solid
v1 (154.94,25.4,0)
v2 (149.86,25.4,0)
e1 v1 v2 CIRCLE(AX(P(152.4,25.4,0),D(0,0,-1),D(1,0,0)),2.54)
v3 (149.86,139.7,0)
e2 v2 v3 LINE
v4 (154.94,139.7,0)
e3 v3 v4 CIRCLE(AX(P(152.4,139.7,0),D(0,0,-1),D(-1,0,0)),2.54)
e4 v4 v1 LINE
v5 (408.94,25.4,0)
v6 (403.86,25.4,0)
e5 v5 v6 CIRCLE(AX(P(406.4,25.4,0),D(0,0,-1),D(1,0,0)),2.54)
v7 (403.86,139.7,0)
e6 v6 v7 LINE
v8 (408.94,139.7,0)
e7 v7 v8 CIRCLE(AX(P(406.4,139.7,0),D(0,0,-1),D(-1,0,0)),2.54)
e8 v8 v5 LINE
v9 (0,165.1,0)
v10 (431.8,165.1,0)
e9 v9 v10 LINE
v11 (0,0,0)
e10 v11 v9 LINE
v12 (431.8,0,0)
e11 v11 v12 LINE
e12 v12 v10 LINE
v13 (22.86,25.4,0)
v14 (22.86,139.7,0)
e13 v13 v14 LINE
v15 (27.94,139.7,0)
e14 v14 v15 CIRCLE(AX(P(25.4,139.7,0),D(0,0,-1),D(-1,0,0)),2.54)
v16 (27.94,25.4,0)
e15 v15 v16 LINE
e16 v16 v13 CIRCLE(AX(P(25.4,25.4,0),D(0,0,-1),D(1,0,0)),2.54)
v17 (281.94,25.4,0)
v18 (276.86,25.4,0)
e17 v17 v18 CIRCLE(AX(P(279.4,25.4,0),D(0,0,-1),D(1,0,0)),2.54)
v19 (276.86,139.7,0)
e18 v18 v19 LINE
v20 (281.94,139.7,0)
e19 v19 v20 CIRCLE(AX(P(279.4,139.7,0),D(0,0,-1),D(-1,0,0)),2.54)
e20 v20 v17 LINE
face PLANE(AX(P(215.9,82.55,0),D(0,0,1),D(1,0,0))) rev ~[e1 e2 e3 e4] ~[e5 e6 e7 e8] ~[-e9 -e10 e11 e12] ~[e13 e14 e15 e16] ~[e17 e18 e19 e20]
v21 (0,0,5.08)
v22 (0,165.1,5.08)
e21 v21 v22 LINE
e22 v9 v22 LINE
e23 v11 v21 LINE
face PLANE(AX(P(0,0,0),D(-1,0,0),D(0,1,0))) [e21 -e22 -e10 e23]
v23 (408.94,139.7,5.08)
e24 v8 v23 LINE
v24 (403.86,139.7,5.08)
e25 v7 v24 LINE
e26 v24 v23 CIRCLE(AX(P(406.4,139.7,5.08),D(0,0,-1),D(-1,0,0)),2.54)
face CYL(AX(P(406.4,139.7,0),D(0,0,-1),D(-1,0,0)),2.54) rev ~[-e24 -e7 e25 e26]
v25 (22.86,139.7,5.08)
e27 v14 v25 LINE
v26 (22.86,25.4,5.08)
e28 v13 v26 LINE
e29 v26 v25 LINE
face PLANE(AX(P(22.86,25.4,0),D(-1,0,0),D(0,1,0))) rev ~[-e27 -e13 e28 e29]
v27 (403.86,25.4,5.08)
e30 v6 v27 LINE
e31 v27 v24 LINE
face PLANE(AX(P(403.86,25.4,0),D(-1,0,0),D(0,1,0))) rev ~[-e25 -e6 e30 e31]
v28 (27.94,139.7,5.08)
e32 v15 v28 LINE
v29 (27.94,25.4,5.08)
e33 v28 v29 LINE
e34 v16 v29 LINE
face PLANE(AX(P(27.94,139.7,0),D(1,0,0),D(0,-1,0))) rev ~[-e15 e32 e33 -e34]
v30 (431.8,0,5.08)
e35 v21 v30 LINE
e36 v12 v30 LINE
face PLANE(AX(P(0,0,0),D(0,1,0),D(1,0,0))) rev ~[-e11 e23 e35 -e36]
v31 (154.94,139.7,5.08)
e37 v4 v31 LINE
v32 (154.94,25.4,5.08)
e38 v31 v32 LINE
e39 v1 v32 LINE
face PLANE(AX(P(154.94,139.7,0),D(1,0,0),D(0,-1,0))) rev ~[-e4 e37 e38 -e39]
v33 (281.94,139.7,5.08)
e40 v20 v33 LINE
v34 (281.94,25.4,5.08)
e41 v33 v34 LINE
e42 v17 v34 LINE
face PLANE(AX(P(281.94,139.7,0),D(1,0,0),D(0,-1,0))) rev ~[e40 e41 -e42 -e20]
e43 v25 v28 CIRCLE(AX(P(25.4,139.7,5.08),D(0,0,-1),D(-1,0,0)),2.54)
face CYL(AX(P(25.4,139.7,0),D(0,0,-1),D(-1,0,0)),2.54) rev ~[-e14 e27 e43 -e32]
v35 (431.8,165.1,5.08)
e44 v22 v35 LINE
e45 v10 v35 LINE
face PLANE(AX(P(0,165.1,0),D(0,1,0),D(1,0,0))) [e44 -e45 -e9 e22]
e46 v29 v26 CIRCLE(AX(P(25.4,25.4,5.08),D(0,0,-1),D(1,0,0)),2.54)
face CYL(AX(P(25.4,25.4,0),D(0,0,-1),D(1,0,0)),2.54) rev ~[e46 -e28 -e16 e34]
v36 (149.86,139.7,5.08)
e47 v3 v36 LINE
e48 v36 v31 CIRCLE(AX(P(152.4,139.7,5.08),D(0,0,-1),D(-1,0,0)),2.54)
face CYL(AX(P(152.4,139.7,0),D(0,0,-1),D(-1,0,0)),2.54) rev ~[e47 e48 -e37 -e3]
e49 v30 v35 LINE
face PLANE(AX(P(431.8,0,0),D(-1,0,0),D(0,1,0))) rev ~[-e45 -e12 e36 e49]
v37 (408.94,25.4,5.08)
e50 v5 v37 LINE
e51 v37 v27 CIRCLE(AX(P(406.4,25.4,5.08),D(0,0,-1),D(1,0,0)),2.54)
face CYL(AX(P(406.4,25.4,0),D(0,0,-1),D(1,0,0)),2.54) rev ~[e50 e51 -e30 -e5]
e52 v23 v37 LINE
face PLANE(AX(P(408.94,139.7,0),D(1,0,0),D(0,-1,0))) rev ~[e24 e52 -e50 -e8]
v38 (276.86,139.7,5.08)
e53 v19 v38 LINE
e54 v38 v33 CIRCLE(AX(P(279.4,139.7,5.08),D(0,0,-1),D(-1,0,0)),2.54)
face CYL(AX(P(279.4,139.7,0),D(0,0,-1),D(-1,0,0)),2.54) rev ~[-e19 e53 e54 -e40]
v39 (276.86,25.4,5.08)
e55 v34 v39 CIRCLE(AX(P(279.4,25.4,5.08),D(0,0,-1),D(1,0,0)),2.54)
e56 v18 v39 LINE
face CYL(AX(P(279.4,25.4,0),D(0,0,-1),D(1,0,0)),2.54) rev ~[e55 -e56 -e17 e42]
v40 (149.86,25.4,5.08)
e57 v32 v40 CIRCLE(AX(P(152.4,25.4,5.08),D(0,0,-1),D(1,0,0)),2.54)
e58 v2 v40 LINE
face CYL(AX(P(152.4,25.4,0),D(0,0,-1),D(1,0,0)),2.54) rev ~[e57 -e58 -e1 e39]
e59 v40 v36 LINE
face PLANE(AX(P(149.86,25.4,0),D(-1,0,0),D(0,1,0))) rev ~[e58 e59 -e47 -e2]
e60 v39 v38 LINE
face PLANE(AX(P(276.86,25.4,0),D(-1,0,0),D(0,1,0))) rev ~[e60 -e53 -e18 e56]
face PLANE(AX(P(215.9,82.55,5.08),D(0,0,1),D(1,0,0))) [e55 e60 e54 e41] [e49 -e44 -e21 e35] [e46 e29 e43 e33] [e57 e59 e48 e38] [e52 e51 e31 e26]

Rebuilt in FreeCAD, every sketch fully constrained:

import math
import FreeCAD as App
import Part
import Sketcher
from FreeCAD import Vector
Q = App.Units.Quantity


def add_polygon(sketch, points):
    """Adds a closed chain of lines whose ends are joined by coincident constraints."""
    first, n = sketch.GeometryCount, len(points)
    for a, b in zip(points, points[1:] + points[:1]):
        sketch.addGeometry(Part.LineSegment(App.Vector(*a, 0), App.Vector(*b, 0)), False)
    for i in range(n):
        sketch.addConstraint(Sketcher.Constraint("Coincident", first + i, 2, first + (i + 1) % n, 1))

doc = App.newDocument("Part")
params = doc.addObject("Spreadsheet::Sheet", "Params")
for row, (alias, value) in enumerate([
    ("sketch1_radius", "0.1 in"),
    ("sketch1_width", "17 in"),
    ("sketch1_height", "6.5 in"),
    ("sketch1_height2", "4.5 in"),
    ("pad1_length", "0.2 in"),
], start=1):
    params.set(f"A{row}", alias)
    params.set(f"B{row}", "=" + value)
    params.setAlias(f"B{row}", alias)

body = doc.addObject("PartDesign::Body", "Body")

# Sketch on XY plane
sketch1 = doc.addObject("Sketcher::SketchObject", "Sketch")
body.addObject(sketch1)
sketch1.AttachmentSupport = (doc.XY_Plane, [""])
sketch1.MapMode = "FlatFace"
add_polygon(sketch1, [(0, 165.1), (0, 0), (431.8, 0), (431.8, 165.1)])  # lines 0-3
sketch1.addGeometry(Part.LineSegment(Vector(149.86, 25.4, 0), Vector(149.86, 139.7, 0)), False)  # 4
sketch1.addGeometry(Part.ArcOfCircle(Part.Circle(Vector(152.4, 139.7, 0), Vector(0, 0, 1), 2.54), math.radians(0), math.radians(180)), False)  # 5
sketch1.addGeometry(Part.LineSegment(Vector(154.94, 139.7, 0), Vector(154.94, 25.4, 0)), False)  # 6
sketch1.addGeometry(Part.ArcOfCircle(Part.Circle(Vector(152.4, 25.4, 0), Vector(0, 0, 1), 2.54), math.radians(180), math.radians(360)), False)  # 7
sketch1.addGeometry(Part.ArcOfCircle(Part.Circle(Vector(25.4, 25.4, 0), Vector(0, 0, 1), 2.54), math.radians(180), math.radians(360)), False)  # 8
sketch1.addGeometry(Part.LineSegment(Vector(22.86, 25.4, 0), Vector(22.86, 139.7, 0)), False)  # 9
sketch1.addGeometry(Part.ArcOfCircle(Part.Circle(Vector(25.4, 139.7, 0), Vector(0, 0, 1), 2.54), math.radians(0), math.radians(180)), False)  # 10
sketch1.addGeometry(Part.LineSegment(Vector(27.94, 139.7, 0), Vector(27.94, 25.4, 0)), False)  # 11
sketch1.addGeometry(Part.LineSegment(Vector(276.86, 25.4, 0), Vector(276.86, 139.7, 0)), False)  # 12
sketch1.addGeometry(Part.ArcOfCircle(Part.Circle(Vector(279.4, 139.7, 0), Vector(0, 0, 1), 2.54), math.radians(0), math.radians(180)), False)  # 13
sketch1.addGeometry(Part.LineSegment(Vector(281.94, 139.7, 0), Vector(281.94, 25.4, 0)), False)  # 14
sketch1.addGeometry(Part.ArcOfCircle(Part.Circle(Vector(279.4, 25.4, 0), Vector(0, 0, 1), 2.54), math.radians(180), math.radians(360)), False)  # 15
sketch1.addGeometry(Part.LineSegment(Vector(403.86, 25.4, 0), Vector(403.86, 139.7, 0)), False)  # 16
sketch1.addGeometry(Part.ArcOfCircle(Part.Circle(Vector(406.4, 139.7, 0), Vector(0, 0, 1), 2.54), math.radians(0), math.radians(180)), False)  # 17
sketch1.addGeometry(Part.LineSegment(Vector(408.94, 139.7, 0), Vector(408.94, 25.4, 0)), False)  # 18
sketch1.addGeometry(Part.ArcOfCircle(Part.Circle(Vector(406.4, 25.4, 0), Vector(0, 0, 1), 2.54), math.radians(180), math.radians(360)), False)  # 19
sketch1.addConstraint(Sketcher.Constraint("Tangent", 4, 2, 5, 2))
sketch1.addConstraint(Sketcher.Constraint("Tangent", 5, 1, 6, 1))
sketch1.addConstraint(Sketcher.Constraint("Tangent", 6, 2, 7, 2))
sketch1.addConstraint(Sketcher.Constraint("Tangent", 7, 1, 4, 1))
sketch1.addConstraint(Sketcher.Constraint("Tangent", 8, 1, 9, 1))
sketch1.addConstraint(Sketcher.Constraint("Tangent", 9, 2, 10, 2))
sketch1.addConstraint(Sketcher.Constraint("Tangent", 10, 1, 11, 1))
sketch1.addConstraint(Sketcher.Constraint("Tangent", 11, 2, 8, 2))
sketch1.addConstraint(Sketcher.Constraint("Tangent", 12, 2, 13, 2))
sketch1.addConstraint(Sketcher.Constraint("Tangent", 13, 1, 14, 1))
sketch1.addConstraint(Sketcher.Constraint("Tangent", 14, 2, 15, 2))
sketch1.addConstraint(Sketcher.Constraint("Tangent", 15, 1, 12, 1))
sketch1.addConstraint(Sketcher.Constraint("Tangent", 16, 2, 17, 2))
sketch1.addConstraint(Sketcher.Constraint("Tangent", 17, 1, 18, 1))
sketch1.addConstraint(Sketcher.Constraint("Tangent", 18, 2, 19, 2))
sketch1.addConstraint(Sketcher.Constraint("Tangent", 19, 1, 16, 1))
sketch1.addConstraint(Sketcher.Constraint("Vertical", 0))
sketch1.addConstraint(Sketcher.Constraint("Horizontal", 1))
sketch1.addConstraint(Sketcher.Constraint("Vertical", 2))
sketch1.addConstraint(Sketcher.Constraint("Horizontal", 3))
sketch1.addConstraint(Sketcher.Constraint("Vertical", 4))
sketch1.addConstraint(Sketcher.Constraint("Vertical", 6))
sketch1.addConstraint(Sketcher.Constraint("Vertical", 9))
sketch1.addConstraint(Sketcher.Constraint("Vertical", 11))
sketch1.addConstraint(Sketcher.Constraint("Vertical", 12))
sketch1.addConstraint(Sketcher.Constraint("Vertical", 14))
sketch1.addConstraint(Sketcher.Constraint("Vertical", 16))
sketch1.addConstraint(Sketcher.Constraint("Vertical", 18))
sketch1.addConstraint(Sketcher.Constraint("Coincident", 0, 2, -1, 1))
sketch1.addConstraint(Sketcher.Constraint("Equal", 7, 8))
sketch1.addConstraint(Sketcher.Constraint("Equal", 10, 13))
sketch1.addConstraint(Sketcher.Constraint("Equal", 15, 17))
sketch1.addConstraint(Sketcher.Constraint("Horizontal", 7, 3, 8, 3))
sketch1.addConstraint(Sketcher.Constraint("Horizontal", 5, 3, 10, 3))
sketch1.addConstraint(Sketcher.Constraint("Horizontal", 10, 3, 13, 3))
sketch1.addConstraint(Sketcher.Constraint("Horizontal", 8, 3, 15, 3))
sketch1.addConstraint(Sketcher.Constraint("Horizontal", 13, 3, 17, 3))
sketch1.addConstraint(Sketcher.Constraint("Horizontal", 15, 3, 19, 3))
sketch1.addConstraint(Sketcher.Constraint("Radius", 5, Q("0.1 in")))
sketch1.addConstraint(Sketcher.Constraint("DistanceX", 1, 1, 1, 2, Q("17 in")))
sketch1.addConstraint(Sketcher.Constraint("DistanceY", 0, 2, 0, 1, Q("6.5 in")))
sketch1.addConstraint(Sketcher.Constraint("DistanceY", 4, 1, 4, 2, Q("4.5 in")))
sketch1.addConstraint(Sketcher.Constraint("DistanceX", -1, 1, 5, 3, Q("6 in")))
sketch1.addConstraint(Sketcher.Constraint("DistanceY", -1, 1, 7, 3, Q("1 in")))
sketch1.addConstraint(Sketcher.Constraint("DistanceX", -1, 1, 8, 3, Q("1 in")))
sketch1.addConstraint(Sketcher.Constraint("DistanceX", -1, 1, 13, 3, Q("11 in")))
sketch1.addConstraint(Sketcher.Constraint("DistanceX", -1, 1, 17, 3, Q("16 in")))
sketch1.setExpression("Constraints[42]", "Params.sketch1_radius")
sketch1.setExpression("Constraints[43]", "Params.sketch1_width")
sketch1.setExpression("Constraints[44]", "Params.sketch1_height")
sketch1.setExpression("Constraints[45]", "Params.sketch1_height2")
pad1 = doc.addObject("PartDesign::Pad", "Pad")
body.addObject(pad1)
pad1.Profile = sketch1
pad1.setExpression("Length", "Params.pad1_length")

doc.recompute()
